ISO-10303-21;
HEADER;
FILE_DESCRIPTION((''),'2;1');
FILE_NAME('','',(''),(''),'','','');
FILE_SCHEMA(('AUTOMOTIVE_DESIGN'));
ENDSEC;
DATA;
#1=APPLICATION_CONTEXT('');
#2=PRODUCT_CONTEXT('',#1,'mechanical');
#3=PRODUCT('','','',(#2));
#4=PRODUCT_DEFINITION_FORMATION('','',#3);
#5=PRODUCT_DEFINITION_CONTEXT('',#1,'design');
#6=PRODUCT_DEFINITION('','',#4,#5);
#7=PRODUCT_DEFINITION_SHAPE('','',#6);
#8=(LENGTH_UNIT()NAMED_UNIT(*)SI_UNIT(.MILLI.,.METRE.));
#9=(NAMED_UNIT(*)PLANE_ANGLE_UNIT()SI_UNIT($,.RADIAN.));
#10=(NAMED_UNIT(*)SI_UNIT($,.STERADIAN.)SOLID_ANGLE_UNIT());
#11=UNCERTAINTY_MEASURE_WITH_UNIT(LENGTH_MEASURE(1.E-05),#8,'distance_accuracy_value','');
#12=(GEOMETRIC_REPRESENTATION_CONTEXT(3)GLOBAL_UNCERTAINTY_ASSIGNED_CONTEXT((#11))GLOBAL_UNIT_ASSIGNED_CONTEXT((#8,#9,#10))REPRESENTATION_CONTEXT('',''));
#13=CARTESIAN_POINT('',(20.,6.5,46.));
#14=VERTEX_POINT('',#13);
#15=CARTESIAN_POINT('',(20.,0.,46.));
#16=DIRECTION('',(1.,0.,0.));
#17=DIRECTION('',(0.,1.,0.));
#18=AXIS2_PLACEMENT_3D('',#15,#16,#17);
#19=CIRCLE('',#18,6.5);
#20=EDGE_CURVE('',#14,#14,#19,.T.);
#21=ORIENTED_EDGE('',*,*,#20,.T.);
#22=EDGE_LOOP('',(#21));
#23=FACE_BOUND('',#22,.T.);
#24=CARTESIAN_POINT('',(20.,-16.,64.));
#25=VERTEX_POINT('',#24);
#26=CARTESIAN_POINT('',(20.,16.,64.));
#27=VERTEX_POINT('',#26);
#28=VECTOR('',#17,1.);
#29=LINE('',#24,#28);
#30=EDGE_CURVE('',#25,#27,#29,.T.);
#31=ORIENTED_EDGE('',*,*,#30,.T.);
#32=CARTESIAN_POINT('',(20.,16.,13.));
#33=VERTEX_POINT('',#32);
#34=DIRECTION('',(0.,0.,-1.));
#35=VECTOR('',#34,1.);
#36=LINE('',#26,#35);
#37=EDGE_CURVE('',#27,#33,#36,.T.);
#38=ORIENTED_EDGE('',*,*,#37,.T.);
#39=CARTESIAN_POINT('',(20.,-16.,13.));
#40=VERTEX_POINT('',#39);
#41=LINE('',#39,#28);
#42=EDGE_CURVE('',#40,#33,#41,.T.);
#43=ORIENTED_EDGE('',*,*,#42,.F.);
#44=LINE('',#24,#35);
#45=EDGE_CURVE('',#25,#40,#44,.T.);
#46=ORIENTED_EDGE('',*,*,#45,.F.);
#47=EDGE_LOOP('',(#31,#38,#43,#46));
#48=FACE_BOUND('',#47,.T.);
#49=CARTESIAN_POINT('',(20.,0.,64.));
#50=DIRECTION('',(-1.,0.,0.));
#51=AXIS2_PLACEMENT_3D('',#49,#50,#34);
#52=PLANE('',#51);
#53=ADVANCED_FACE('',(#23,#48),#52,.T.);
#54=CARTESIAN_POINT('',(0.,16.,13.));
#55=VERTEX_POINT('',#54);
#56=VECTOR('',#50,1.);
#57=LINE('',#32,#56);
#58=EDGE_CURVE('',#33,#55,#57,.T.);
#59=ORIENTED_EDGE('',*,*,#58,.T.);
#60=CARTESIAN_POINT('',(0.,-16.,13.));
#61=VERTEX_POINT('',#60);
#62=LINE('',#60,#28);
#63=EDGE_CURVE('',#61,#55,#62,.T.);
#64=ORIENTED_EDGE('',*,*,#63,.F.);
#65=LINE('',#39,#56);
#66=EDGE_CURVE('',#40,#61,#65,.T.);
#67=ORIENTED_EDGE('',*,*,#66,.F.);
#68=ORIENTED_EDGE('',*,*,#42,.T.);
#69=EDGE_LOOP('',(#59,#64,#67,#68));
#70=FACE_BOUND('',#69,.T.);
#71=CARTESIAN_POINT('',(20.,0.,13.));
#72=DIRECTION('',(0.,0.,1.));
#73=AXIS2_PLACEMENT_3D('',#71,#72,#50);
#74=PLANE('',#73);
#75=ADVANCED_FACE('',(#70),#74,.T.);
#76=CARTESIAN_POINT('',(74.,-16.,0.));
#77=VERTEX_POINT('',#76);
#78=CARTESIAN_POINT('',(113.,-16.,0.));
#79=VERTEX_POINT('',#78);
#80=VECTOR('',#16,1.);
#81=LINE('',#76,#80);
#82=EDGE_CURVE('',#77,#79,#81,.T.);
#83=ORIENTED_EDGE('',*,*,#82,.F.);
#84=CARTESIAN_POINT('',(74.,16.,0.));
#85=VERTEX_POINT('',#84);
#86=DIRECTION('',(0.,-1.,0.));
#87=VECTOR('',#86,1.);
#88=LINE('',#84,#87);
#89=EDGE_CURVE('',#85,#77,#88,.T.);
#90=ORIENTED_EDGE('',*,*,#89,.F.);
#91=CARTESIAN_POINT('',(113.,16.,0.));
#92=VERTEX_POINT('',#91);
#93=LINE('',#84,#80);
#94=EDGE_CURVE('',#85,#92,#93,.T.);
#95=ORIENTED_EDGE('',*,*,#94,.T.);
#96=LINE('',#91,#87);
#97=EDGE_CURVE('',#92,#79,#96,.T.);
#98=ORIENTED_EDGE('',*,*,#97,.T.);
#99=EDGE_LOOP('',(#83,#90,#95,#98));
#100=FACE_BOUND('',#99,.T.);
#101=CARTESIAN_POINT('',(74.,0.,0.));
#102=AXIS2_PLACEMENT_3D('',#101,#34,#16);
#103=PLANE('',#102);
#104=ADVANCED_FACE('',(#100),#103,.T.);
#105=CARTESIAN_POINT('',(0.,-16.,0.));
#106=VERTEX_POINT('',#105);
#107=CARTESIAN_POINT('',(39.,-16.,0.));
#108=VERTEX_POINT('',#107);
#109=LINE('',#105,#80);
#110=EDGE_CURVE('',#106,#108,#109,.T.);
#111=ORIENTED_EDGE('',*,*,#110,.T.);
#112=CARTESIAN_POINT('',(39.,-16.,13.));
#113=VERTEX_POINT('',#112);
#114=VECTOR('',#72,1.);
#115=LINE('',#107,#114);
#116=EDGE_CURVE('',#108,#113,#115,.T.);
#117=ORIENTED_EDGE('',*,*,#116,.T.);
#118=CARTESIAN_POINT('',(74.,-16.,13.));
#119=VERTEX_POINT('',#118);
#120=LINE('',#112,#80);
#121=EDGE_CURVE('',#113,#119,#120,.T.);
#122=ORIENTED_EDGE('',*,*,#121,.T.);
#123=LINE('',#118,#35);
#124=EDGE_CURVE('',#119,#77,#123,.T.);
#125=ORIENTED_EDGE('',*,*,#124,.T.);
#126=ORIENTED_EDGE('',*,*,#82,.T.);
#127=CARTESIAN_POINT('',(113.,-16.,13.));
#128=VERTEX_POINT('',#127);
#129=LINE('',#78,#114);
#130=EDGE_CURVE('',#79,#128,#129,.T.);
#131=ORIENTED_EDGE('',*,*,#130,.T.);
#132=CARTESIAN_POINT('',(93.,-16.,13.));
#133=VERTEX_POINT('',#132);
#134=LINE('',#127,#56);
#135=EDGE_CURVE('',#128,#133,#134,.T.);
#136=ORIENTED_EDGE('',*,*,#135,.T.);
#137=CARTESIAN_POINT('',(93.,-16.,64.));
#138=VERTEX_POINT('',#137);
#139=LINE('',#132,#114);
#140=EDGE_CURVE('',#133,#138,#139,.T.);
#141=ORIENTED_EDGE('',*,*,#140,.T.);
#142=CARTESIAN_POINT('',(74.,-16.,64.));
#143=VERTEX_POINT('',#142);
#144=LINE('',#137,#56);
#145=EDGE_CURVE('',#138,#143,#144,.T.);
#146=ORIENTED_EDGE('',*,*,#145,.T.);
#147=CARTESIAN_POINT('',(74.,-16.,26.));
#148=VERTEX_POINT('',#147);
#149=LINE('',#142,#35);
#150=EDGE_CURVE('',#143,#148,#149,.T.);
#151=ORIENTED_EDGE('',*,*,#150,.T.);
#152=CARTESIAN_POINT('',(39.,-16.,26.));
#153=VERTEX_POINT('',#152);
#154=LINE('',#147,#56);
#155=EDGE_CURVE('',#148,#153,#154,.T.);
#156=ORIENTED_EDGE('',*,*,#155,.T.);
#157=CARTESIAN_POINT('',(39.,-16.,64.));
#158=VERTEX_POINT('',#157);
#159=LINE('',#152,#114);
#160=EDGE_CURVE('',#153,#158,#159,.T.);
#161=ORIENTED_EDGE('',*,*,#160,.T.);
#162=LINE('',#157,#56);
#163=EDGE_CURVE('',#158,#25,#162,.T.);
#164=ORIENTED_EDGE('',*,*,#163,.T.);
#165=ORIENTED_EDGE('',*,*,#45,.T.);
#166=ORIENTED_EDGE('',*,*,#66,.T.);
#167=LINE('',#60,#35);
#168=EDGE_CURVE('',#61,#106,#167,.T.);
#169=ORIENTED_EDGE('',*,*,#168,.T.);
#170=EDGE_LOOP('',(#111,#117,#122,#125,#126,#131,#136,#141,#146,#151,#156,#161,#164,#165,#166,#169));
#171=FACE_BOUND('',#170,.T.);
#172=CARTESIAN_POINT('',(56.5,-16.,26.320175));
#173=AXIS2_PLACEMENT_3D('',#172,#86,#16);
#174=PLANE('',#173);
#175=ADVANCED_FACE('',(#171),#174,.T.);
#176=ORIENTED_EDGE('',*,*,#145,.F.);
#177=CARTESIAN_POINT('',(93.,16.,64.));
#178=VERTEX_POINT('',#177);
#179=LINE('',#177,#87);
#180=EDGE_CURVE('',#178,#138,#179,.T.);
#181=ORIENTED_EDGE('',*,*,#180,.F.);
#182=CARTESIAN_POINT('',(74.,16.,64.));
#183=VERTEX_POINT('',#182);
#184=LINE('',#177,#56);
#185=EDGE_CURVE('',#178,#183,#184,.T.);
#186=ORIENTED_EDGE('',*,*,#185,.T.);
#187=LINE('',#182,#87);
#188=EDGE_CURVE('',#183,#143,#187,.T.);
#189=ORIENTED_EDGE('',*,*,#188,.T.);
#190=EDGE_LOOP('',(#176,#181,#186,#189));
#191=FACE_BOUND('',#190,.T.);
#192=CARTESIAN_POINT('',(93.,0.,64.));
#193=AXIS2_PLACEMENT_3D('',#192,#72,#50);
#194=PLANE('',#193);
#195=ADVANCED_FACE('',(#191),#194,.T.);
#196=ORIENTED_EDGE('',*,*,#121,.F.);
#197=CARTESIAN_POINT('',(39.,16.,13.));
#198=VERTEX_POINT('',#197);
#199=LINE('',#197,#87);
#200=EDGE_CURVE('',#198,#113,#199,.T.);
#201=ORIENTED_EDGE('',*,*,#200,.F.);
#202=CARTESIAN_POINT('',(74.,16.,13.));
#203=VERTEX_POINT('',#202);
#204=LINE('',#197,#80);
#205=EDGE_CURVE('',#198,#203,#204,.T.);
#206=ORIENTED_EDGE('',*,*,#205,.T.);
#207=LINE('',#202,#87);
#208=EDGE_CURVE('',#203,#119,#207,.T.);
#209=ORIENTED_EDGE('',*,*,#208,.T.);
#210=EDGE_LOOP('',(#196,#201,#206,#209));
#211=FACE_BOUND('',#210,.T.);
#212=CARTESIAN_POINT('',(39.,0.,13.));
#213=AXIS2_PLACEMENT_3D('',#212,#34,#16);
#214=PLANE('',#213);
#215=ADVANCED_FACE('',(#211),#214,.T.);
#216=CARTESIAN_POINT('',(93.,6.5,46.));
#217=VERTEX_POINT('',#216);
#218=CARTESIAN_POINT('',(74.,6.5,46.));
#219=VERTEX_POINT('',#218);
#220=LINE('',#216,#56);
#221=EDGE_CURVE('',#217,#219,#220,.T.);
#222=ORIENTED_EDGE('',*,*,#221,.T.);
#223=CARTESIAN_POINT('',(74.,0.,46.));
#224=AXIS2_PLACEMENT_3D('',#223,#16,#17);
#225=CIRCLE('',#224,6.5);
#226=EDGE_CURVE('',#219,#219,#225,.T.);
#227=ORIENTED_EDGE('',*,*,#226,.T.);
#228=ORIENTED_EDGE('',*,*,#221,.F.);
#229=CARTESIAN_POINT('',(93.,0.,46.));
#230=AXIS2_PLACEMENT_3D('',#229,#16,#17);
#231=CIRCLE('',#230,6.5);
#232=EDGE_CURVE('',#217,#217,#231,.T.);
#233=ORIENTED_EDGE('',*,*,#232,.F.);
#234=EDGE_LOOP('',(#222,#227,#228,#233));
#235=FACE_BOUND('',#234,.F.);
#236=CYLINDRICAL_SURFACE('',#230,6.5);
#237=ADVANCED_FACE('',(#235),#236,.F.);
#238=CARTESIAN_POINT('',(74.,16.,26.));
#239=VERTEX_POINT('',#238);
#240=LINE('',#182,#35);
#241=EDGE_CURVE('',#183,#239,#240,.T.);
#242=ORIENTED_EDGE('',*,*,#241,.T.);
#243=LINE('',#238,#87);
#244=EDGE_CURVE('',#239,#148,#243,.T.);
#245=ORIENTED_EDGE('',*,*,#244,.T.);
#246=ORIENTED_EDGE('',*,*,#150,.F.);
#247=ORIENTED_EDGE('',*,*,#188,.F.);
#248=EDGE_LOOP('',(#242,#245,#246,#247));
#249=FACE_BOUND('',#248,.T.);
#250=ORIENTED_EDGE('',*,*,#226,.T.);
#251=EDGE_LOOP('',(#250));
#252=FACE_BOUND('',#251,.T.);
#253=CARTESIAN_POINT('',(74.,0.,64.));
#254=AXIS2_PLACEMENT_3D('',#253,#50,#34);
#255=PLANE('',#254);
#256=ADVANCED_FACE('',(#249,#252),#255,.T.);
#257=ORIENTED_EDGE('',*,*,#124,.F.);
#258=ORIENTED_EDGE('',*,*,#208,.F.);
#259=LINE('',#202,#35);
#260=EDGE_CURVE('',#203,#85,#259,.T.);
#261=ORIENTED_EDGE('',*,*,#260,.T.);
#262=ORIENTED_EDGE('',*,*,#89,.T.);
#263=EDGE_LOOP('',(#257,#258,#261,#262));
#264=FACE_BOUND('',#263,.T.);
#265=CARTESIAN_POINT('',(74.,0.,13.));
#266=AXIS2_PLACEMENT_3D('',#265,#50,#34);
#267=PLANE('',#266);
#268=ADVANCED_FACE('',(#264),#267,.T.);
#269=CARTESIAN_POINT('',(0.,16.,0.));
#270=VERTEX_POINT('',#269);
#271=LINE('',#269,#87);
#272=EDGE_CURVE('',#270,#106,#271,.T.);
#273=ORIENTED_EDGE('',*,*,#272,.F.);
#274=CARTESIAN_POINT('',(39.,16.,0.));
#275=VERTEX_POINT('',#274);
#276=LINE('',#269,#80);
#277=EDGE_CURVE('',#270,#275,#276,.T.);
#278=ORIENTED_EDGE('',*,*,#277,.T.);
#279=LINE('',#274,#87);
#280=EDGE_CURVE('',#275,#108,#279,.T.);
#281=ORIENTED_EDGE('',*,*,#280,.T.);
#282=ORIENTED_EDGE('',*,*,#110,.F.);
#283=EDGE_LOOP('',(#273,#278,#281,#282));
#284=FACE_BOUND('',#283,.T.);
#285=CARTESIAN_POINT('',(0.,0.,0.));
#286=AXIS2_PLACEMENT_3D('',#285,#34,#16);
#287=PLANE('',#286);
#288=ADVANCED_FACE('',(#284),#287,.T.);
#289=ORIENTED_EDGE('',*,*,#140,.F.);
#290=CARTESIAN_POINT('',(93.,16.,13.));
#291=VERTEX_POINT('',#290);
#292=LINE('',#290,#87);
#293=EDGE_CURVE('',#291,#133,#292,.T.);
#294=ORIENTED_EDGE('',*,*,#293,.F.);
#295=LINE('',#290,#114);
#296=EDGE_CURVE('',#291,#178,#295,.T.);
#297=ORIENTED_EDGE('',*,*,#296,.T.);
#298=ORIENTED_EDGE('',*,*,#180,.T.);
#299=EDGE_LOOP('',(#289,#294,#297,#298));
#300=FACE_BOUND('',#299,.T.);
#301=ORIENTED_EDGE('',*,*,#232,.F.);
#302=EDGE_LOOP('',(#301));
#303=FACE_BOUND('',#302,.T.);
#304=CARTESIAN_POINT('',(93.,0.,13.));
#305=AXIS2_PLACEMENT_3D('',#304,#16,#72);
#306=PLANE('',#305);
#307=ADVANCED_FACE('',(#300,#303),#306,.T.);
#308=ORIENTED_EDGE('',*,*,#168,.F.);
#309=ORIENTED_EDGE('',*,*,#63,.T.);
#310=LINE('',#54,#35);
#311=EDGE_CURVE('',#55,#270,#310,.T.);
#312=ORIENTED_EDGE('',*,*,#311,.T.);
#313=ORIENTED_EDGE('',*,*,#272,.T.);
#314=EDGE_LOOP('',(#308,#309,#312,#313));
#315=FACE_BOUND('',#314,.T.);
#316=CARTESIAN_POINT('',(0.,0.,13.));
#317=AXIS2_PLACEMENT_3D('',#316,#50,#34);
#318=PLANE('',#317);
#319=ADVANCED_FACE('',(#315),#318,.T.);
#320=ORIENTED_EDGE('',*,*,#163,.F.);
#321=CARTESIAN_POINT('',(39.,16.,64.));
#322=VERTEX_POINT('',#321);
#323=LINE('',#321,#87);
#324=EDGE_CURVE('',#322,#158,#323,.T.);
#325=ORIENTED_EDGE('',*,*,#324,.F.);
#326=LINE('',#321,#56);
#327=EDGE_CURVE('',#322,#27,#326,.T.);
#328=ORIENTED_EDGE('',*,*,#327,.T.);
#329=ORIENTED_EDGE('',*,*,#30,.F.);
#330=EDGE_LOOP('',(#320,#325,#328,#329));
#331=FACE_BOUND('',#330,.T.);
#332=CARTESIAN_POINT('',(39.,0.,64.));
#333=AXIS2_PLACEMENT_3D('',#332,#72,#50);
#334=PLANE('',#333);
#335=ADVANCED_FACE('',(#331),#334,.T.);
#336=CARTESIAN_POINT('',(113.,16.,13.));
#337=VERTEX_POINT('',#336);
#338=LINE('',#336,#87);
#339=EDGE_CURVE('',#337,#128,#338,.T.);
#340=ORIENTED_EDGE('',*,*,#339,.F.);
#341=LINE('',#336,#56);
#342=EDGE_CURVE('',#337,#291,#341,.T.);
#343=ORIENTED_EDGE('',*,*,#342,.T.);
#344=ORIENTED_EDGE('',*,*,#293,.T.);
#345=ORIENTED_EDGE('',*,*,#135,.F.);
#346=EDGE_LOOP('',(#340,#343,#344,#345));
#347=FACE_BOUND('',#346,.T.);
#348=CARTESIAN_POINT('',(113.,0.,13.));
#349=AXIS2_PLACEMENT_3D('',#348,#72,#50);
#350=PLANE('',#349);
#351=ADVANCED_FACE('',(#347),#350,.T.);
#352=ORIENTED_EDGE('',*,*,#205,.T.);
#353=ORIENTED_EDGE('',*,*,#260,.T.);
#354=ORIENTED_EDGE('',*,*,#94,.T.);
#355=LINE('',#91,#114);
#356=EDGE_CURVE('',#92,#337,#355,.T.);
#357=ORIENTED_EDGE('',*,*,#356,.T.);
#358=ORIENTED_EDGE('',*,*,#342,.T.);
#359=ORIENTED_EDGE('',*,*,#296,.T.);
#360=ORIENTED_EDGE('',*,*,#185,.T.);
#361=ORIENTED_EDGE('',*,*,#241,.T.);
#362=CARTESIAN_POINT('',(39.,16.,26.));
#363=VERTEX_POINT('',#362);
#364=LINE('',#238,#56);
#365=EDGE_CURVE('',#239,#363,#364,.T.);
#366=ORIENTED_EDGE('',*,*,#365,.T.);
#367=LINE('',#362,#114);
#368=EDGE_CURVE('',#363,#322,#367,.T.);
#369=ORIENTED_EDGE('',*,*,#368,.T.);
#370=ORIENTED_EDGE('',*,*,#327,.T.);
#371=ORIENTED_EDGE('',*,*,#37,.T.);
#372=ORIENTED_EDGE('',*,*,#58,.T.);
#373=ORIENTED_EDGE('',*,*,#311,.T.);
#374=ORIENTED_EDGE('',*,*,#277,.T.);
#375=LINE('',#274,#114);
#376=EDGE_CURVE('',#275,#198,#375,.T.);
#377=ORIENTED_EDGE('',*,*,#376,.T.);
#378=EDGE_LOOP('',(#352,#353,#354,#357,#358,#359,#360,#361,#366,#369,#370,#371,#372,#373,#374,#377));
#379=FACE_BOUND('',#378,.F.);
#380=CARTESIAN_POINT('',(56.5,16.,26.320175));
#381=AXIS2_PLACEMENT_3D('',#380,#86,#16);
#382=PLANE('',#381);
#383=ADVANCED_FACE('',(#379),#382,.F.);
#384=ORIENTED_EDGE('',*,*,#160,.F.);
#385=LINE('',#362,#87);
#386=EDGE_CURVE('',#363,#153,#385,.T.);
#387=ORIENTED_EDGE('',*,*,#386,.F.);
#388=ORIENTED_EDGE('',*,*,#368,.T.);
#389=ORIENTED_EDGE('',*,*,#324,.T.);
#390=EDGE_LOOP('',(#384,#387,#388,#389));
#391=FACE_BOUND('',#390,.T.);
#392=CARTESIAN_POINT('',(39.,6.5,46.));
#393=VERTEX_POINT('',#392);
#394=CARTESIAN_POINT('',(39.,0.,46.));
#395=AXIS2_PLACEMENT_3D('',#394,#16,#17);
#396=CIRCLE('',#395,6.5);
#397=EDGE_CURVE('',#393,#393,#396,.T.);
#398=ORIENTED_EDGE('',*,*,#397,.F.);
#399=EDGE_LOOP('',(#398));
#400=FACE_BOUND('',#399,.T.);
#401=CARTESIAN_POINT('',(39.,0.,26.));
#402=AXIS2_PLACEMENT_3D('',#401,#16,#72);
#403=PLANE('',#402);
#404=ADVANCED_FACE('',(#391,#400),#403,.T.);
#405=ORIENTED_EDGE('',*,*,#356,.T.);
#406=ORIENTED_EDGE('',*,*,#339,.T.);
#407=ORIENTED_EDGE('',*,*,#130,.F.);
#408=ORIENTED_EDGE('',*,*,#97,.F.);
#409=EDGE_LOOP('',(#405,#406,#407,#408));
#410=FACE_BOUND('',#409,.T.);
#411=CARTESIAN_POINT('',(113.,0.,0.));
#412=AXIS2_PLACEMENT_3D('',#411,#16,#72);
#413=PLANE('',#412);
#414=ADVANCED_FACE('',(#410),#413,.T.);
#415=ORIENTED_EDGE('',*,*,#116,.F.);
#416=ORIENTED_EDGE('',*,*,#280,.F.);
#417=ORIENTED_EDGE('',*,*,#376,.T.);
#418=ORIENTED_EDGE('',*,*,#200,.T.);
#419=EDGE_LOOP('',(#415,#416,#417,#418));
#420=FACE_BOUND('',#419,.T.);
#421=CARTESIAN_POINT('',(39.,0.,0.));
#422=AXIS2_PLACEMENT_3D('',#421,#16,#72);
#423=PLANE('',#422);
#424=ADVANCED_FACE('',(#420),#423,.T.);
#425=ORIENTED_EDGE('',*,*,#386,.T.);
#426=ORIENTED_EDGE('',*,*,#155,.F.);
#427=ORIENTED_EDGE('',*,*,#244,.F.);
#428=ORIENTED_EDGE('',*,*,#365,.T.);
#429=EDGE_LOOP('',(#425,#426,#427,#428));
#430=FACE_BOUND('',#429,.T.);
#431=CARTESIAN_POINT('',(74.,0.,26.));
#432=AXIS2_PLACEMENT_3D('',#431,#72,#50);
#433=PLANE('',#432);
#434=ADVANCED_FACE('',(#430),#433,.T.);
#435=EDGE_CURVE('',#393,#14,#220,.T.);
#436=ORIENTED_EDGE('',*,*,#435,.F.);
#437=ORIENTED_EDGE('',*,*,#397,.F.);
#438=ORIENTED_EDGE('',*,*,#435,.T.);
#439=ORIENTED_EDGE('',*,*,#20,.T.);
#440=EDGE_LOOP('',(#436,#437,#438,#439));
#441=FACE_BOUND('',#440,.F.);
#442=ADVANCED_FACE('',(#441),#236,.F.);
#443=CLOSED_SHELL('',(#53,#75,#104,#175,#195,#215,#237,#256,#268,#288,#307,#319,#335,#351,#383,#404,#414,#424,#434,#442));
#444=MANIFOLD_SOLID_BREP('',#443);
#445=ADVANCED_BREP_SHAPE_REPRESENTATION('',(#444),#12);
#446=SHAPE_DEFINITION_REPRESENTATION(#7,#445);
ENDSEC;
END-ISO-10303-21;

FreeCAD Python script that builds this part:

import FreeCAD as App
import Part
import Sketcher

doc = App.newDocument("Part")
body = doc.addObject("PartDesign::Body", "Body")

sketch1 = doc.addObject("Sketcher::SketchObject", "Sketch")
body.addObject(sketch1)
sketch1.AttachmentSupport = (doc.XZ_Plane, [""])
sketch1.MapMode = "FlatFace"
sketch1.addGeometry(Part.LineSegment(App.Vector(0, 13, 0), App.Vector(0, 0, 0)), False)
sketch1.addGeometry(Part.LineSegment(App.Vector(0, 0, 0), App.Vector(39, 0, 0)), False)
sketch1.addGeometry(Part.LineSegment(App.Vector(39, 0, 0), App.Vector(39, 13, 0)), False)
sketch1.addGeometry(Part.LineSegment(App.Vector(39, 13, 0), App.Vector(74, 13, 0)), False)
sketch1.addGeometry(Part.LineSegment(App.Vector(74, 13, 0), App.Vector(74, 0, 0)), False)
sketch1.addGeometry(Part.LineSegment(App.Vector(74, 0, 0), App.Vector(113, 0, 0)), False)
sketch1.addGeometry(Part.LineSegment(App.Vector(113, 0, 0), App.Vector(113, 13, 0)), False)
sketch1.addGeometry(Part.LineSegment(App.Vector(113, 13, 0), App.Vector(93, 13, 0)), False)
sketch1.addGeometry(Part.LineSegment(App.Vector(93, 13, 0), App.Vector(93, 64, 0)), False)
sketch1.addGeometry(Part.LineSegment(App.Vector(93, 64, 0), App.Vector(74, 64, 0)), False)
sketch1.addGeometry(Part.LineSegment(App.Vector(74, 64, 0), App.Vector(74, 26, 0)), False)
sketch1.addGeometry(Part.LineSegment(App.Vector(74, 26, 0), App.Vector(39, 26, 0)), False)
sketch1.addGeometry(Part.LineSegment(App.Vector(39, 26, 0), App.Vector(39, 64, 0)), False)
sketch1.addGeometry(Part.LineSegment(App.Vector(39, 64, 0), App.Vector(20, 64, 0)), False)
sketch1.addGeometry(Part.LineSegment(App.Vector(20, 64, 0), App.Vector(20, 13, 0)), False)
sketch1.addGeometry(Part.LineSegment(App.Vector(20, 13, 0), App.Vector(0, 13, 0)), False)
sketch1.addConstraint(Sketcher.Constraint("Coincident", 0, 2, 1, 1))
sketch1.addConstraint(Sketcher.Constraint("Coincident", 1, 2, 2, 1))
sketch1.addConstraint(Sketcher.Constraint("Coincident", 2, 2, 3, 1))
sketch1.addConstraint(Sketcher.Constraint("Coincident", 3, 2, 4, 1))
sketch1.addConstraint(Sketcher.Constraint("Coincident", 4, 2, 5, 1))
sketch1.addConstraint(Sketcher.Constraint("Coincident", 5, 2, 6, 1))
sketch1.addConstraint(Sketcher.Constraint("Coincident", 6, 2, 7, 1))
sketch1.addConstraint(Sketcher.Constraint("Coincident", 7, 2, 8, 1))
sketch1.addConstraint(Sketcher.Constraint("Coincident", 8, 2, 9, 1))
sketch1.addConstraint(Sketcher.Constraint("Coincident", 9, 2, 10, 1))
sketch1.addConstraint(Sketcher.Constraint("Coincident", 10, 2, 11, 1))
sketch1.addConstraint(Sketcher.Constraint("Coincident", 11, 2, 12, 1))
sketch1.addConstraint(Sketcher.Constraint("Coincident", 12, 2, 13, 1))
sketch1.addConstraint(Sketcher.Constraint("Coincident", 13, 2, 14, 1))
sketch1.addConstraint(Sketcher.Constraint("Coincident", 14, 2, 15, 1))
sketch1.addConstraint(Sketcher.Constraint("Coincident", 15, 2, 0, 1))
sketch1.addConstraint(Sketcher.Constraint("Vertical", 0))
sketch1.addConstraint(Sketcher.Constraint("Horizontal", 1))
sketch1.addConstraint(Sketcher.Constraint("Vertical", 2))
sketch1.addConstraint(Sketcher.Constraint("Horizontal", 3))
sketch1.addConstraint(Sketcher.Constraint("Vertical", 4))
sketch1.addConstraint(Sketcher.Constraint("Horizontal", 5))
sketch1.addConstraint(Sketcher.Constraint("Vertical", 6))
sketch1.addConstraint(Sketcher.Constraint("Horizontal", 7))
sketch1.addConstraint(Sketcher.Constraint("Vertical", 8))
sketch1.addConstraint(Sketcher.Constraint("Horizontal", 9))
sketch1.addConstraint(Sketcher.Constraint("Vertical", 10))
sketch1.addConstraint(Sketcher.Constraint("Horizontal", 11))
sketch1.addConstraint(Sketcher.Constraint("Vertical", 12))
sketch1.addConstraint(Sketcher.Constraint("Horizontal", 13))
sketch1.addConstraint(Sketcher.Constraint("Vertical", 14))
sketch1.addConstraint(Sketcher.Constraint("Horizontal", 15))
sketch1.addConstraint(Sketcher.Constraint("Coincident", 0, 2, -1, 1))
sketch1.addConstraint(Sketcher.Constraint("PointOnObject", 4, 2, -1))
sketch1.addConstraint(Sketcher.Constraint("Horizontal", 3, 2, 6, 2))
sketch1.addConstraint(Sketcher.Constraint("Horizontal", 9, 2, 12, 2))
sketch1.addConstraint(Sketcher.Constraint("Horizontal", 7, 2, 14, 2))
sketch1.addConstraint(Sketcher.Constraint("Vertical", 4, 2, 9, 2))
sketch1.addConstraint(Sketcher.Constraint("Vertical", 2, 2, 11, 2))
sketch1.addConstraint(Sketcher.Constraint("Equal", 1, 5))
sketch1.addConstraint(Sketcher.Constraint("Equal", 9, 13))
sketch1.addConstraint(Sketcher.Constraint("DistanceX", 1, 1, 1, 2, 39.0))
sketch1.addConstraint(Sketcher.Constraint("DistanceX", 3, 1, 3, 2, 35.0))
sketch1.addConstraint(Sketcher.Constraint("DistanceX", 7, 2, 7, 1, 20.0))
sketch1.addConstraint(Sketcher.Constraint("DistanceY", 0, 2, 0, 1, 13.0))
sketch1.addConstraint(Sketcher.Constraint("DistanceY", 8, 1, 8, 2, 51.0))
sketch1.addConstraint(Sketcher.Constraint("DistanceY", 10, 2, 10, 1, 38.0))
pad1 = doc.addObject("PartDesign::Pad", "Pad")
body.addObject(pad1)
pad1.Profile = sketch1
pad1.Length = 32
pad1.Midplane = True

sketch2 = doc.addObject("Sketcher::SketchObject", "Sketch001")
body.addObject(sketch2)
sketch2.AttachmentSupport = (doc.YZ_Plane, [""])
sketch2.MapMode = "FlatFace"
sketch2.AttachmentOffset = App.Placement(App.Vector(0, 0, 93), App.Rotation())
sketch2.addGeometry(Part.Circle(App.Vector(0, 46, 0), App.Vector(0, 0, 1), 6), False)
sketch2.addConstraint(Sketcher.Constraint("PointOnObject", 0, 3, -2))
sketch2.addConstraint(Sketcher.Constraint("Diameter", 0, 13.0))
sketch2.addConstraint(Sketcher.Constraint("DistanceY", -1, 1, 0, 3, 46.0))
pocket1 = doc.addObject("PartDesign::Pocket", "Pocket")
body.addObject(pocket1)
pocket1.Profile = sketch2
pocket1.Type = "ThroughAll"

sketch3 = doc.addObject("Sketcher::SketchObject", "Sketch002")
body.addObject(sketch3)
sketch3.AttachmentSupport = (doc.YZ_Plane, [""])
sketch3.MapMode = "FlatFace"
sketch3.AttachmentOffset = App.Placement(App.Vector(0, 0, 93), App.Rotation())
sketch3.addGeometry(Part.Circle(App.Vector(0, 46, 0), App.Vector(0, 0, 1), 6), False)
sketch3.addConstraint(Sketcher.Constraint("PointOnObject", 0, 3, -2))
sketch3.addConstraint(Sketcher.Constraint("Diameter", 0, 13.0))
sketch3.addConstraint(Sketcher.Constraint("DistanceY", -1, 1, 0, 3, 46.0))
pocket2 = doc.addObject("PartDesign::Pocket", "Pocket001")
body.addObject(pocket2)
pocket2.Profile = sketch3
pocket2.Type = "ThroughAll"

doc.recompute()
